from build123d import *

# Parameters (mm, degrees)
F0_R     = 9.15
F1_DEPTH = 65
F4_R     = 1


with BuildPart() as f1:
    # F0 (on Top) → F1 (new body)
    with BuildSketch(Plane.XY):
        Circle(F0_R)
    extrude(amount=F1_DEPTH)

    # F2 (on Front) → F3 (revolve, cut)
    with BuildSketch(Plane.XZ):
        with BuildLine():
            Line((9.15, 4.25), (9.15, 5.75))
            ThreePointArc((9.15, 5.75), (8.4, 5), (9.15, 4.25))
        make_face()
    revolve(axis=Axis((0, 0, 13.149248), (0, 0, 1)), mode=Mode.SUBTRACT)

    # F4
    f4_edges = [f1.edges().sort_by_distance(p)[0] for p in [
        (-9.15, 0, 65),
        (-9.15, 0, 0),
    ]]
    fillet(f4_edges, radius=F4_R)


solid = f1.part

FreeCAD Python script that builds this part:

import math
import FreeCAD as App
import Part
import Sketcher


def edges_at(feature, points):
    """Names of the edges that pass closest to the given points."""
    edges = feature.Shape.Edges
    near = lambda p: min(range(len(edges)), key=lambda i: edges[i].distToShape(Part.Vertex(*p))[0])
    return sorted({f"Edge{near(p) + 1}" for p in points})

doc = App.newDocument("Part")
params = doc.addObject("Spreadsheet::Sheet", "Params")
for row, (alias, value) in enumerate([
    ("sketch1_diameter", "18.3 mm"),
    ("pad1_length", "65 mm"),
    ("sketch2_radius", "0.75 mm"),
    ("groove_angle", "360 deg"),
    ("fillet_radius", "1 mm"),
], start=1):
    params.set(f"A{row}", alias)
    params.set(f"B{row}", "=" + value)
    params.setAlias(f"B{row}", alias)

body = doc.addObject("PartDesign::Body", "Body")

sketch1 = doc.addObject("Sketcher::SketchObject", "Sketch")
body.addObject(sketch1)
sketch1.AttachmentSupport = (doc.XY_Plane, [""])
sketch1.MapMode = "FlatFace"
sketch1.addGeometry(Part.Circle(App.Vector(0, 0, 0), App.Vector(0, 0, 1), 9.15), False)
sketch1.addConstraint(Sketcher.Constraint("Coincident", 0, 3, -1, 1))
sketch1.addConstraint(Sketcher.Constraint("Diameter", 0, 18.3))
sketch1.setExpression("Constraints[1]", "Params.sketch1_diameter")
pad1 = doc.addObject("PartDesign::Pad", "Pad")
body.addObject(pad1)
pad1.Profile = sketch1
pad1.setExpression("Length", "Params.pad1_length")

sketch2 = doc.addObject("Sketcher::SketchObject", "Sketch001")
body.addObject(sketch2)
sketch2.AttachmentSupport = (doc.XZ_Plane, [""])
sketch2.MapMode = "FlatFace"
sketch2.addGeometry(Part.LineSegment(App.Vector(9.15, 4.25, 0), App.Vector(9.15, 5.75, 0)), False)
sketch2.addGeometry(Part.ArcOfCircle(Part.Circle(App.Vector(9.15, 5, 0), App.Vector(0, 0, 1), 0.75), math.radians(90), math.radians(270)), False)
sketch2.addConstraint(Sketcher.Constraint("Coincident", 0, 1, 1, 2))
sketch2.addConstraint(Sketcher.Constraint("Coincident", 1, 1, 0, 2))
sketch2.addConstraint(Sketcher.Constraint("Vertical", 0))
sketch2.addConstraint(Sketcher.Constraint("Vertical", 1, 3, 0, 1))
sketch2.addConstraint(Sketcher.Constraint("Radius", 1, 0.75))
sketch2.addConstraint(Sketcher.Constraint("DistanceY", -1, 1, 1, 3, 5.0))
sketch2.addConstraint(Sketcher.Constraint("DistanceX", -1, 1, 1, 3, 9.15))
sketch2.setExpression("Constraints[4]", "Params.sketch2_radius")
groove = doc.addObject("PartDesign::Groove", "Groove")
body.addObject(groove)
groove.Profile = sketch2
groove.ReferenceAxis = (sketch2, ["V_Axis"])
groove.setExpression("Angle", "Params.groove_angle")
doc.recompute()

fillet = doc.addObject("PartDesign::Fillet", "Fillet")
body.addObject(fillet)
fillet.Base = (groove, edges_at(groove, [(-9.15, 0, 65), (-9.15, 0, 0)]))
fillet.setExpression("Radius", "Params.fillet_radius")

doc.recompute()
